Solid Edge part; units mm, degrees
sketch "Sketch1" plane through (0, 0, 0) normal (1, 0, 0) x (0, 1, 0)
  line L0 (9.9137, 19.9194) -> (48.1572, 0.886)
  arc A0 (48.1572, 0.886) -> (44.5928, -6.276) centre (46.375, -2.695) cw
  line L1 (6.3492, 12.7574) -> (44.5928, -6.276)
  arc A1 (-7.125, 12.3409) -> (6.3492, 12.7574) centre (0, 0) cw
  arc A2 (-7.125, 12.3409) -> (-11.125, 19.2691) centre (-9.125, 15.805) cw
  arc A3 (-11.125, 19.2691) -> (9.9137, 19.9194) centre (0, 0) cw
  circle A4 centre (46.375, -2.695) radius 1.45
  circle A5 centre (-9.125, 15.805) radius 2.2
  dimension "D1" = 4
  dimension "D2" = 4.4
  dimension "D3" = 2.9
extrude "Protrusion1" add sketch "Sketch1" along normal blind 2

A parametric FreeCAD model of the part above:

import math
import FreeCAD as App
import Part
import Sketcher

V = App.Vector
Q = App.Units.Quantity

doc = App.newDocument("Part")
params = doc.addObject("Spreadsheet::Sheet", "Params")
for row, (alias, value) in enumerate([
    ("sketch1_radius", "4 mm"),
    ("sketch1_diameter", "2.9 mm"),
    ("sketch1_diameter2", "4.4 mm"),
    ("sketch1_radius2", "22.25 mm"),
    ("pad1_length", "2 mm"),
], start=1):
    params.set(f"A{row}", alias)
    params.set(f"B{row}", "=" + value)
    params.setAlias(f"B{row}", alias)

body = doc.addObject("PartDesign::Body", "Body")

# Sketch on YZ plane
sketch1 = body.newObject("Sketcher::SketchObject", "Sketch")
sketch1.AttachmentSupport = (doc.getObject("YZ_Plane"), [""])
sketch1.MapMode = "FlatFace"
sketch1.addGeometry(Part.LineSegment(V(48.2, 0.9, 0), V(9.9, 19.9, 0)), False)
sketch1.addGeometry(Part.ArcOfCircle(Part.Circle(V(0, 0, 0), V(0, 0, 1), 22.3), math.radians(64), math.radians(120)), False)
sketch1.addGeometry(Part.ArcOfCircle(Part.Circle(V(-9.1, 15.8, 0), V(0, 0, 1), 4), math.radians(120), math.radians(300)), False)
sketch1.addGeometry(Part.ArcOfCircle(Part.Circle(V(0, 0, 0), V(0, 0, 1), 14.3), math.radians(64), math.radians(120)), False)
sketch1.addGeometry(Part.LineSegment(V(6.3, 12.8, 0), V(44.6, -6.3, 0)), False)
sketch1.addGeometry(Part.ArcOfCircle(Part.Circle(V(46.4, -2.7, 0), V(0, 0, 1), 4), math.radians(-116), math.radians(64)), False)
sketch1.addGeometry(Part.Circle(V(46.4, -2.7, 0), V(0, 0, 1), 1.4), False)
sketch1.addGeometry(Part.Circle(V(-9.1, 15.8, 0), V(0, 0, 1), 2.2), False)
sketch1.addConstraint(Sketcher.Constraint("Tangent", 0, 2, 1, 1))
sketch1.addConstraint(Sketcher.Constraint("Tangent", 1, 2, 2, 1))
sketch1.addConstraint(Sketcher.Constraint("Tangent", 2, 2, 3, 2))
sketch1.addConstraint(Sketcher.Constraint("Tangent", 3, 1, 4, 1))
sketch1.addConstraint(Sketcher.Constraint("Tangent", 4, 2, 5, 1))
sketch1.addConstraint(Sketcher.Constraint("Tangent", 5, 2, 0, 1))
sketch1.addConstraint(Sketcher.Constraint("Coincident", 1, 3, -1, 1))
sketch1.addConstraint(Sketcher.Constraint("Coincident", 3, 3, -1, 1))
sketch1.addConstraint(Sketcher.Constraint("Coincident", 6, 3, 5, 3))
sketch1.addConstraint(Sketcher.Constraint("Coincident", 7, 3, 2, 3))
sketch1.addConstraint(Sketcher.Constraint("Equal", 2, 5))
sketch1.addConstraint(Sketcher.Constraint("Radius", 2, Q("4 mm")))
sketch1.addConstraint(Sketcher.Constraint("Diameter", 6, Q("2.9 mm")))
sketch1.addConstraint(Sketcher.Constraint("Diameter", 7, Q("4.4 mm")))
sketch1.addConstraint(Sketcher.Constraint("Radius", 1, Q("22.25 mm")))
sketch1.addConstraint(Sketcher.Constraint("DistanceX", 1, 2, 2, 3, Q("2 mm")))
sketch1.addConstraint(Sketcher.Constraint("Angle", 0, Q("153.541 deg")))
sketch1.addConstraint(Sketcher.Constraint("DistanceX", 2, 3, 5, 3, Q("55.5 mm")))
sketch1.setExpression("Constraints[11]", "Params.sketch1_radius")
sketch1.setExpression("Constraints[12]", "Params.sketch1_diameter")
sketch1.setExpression("Constraints[13]", "Params.sketch1_diameter2")
sketch1.setExpression("Constraints[14]", "Params.sketch1_radius2")
pad1 = body.newObject("PartDesign::Pad", "Pad")
pad1.Profile = sketch1
pad1.setExpression("Length", "Params.pad1_length")

doc.recompute()
